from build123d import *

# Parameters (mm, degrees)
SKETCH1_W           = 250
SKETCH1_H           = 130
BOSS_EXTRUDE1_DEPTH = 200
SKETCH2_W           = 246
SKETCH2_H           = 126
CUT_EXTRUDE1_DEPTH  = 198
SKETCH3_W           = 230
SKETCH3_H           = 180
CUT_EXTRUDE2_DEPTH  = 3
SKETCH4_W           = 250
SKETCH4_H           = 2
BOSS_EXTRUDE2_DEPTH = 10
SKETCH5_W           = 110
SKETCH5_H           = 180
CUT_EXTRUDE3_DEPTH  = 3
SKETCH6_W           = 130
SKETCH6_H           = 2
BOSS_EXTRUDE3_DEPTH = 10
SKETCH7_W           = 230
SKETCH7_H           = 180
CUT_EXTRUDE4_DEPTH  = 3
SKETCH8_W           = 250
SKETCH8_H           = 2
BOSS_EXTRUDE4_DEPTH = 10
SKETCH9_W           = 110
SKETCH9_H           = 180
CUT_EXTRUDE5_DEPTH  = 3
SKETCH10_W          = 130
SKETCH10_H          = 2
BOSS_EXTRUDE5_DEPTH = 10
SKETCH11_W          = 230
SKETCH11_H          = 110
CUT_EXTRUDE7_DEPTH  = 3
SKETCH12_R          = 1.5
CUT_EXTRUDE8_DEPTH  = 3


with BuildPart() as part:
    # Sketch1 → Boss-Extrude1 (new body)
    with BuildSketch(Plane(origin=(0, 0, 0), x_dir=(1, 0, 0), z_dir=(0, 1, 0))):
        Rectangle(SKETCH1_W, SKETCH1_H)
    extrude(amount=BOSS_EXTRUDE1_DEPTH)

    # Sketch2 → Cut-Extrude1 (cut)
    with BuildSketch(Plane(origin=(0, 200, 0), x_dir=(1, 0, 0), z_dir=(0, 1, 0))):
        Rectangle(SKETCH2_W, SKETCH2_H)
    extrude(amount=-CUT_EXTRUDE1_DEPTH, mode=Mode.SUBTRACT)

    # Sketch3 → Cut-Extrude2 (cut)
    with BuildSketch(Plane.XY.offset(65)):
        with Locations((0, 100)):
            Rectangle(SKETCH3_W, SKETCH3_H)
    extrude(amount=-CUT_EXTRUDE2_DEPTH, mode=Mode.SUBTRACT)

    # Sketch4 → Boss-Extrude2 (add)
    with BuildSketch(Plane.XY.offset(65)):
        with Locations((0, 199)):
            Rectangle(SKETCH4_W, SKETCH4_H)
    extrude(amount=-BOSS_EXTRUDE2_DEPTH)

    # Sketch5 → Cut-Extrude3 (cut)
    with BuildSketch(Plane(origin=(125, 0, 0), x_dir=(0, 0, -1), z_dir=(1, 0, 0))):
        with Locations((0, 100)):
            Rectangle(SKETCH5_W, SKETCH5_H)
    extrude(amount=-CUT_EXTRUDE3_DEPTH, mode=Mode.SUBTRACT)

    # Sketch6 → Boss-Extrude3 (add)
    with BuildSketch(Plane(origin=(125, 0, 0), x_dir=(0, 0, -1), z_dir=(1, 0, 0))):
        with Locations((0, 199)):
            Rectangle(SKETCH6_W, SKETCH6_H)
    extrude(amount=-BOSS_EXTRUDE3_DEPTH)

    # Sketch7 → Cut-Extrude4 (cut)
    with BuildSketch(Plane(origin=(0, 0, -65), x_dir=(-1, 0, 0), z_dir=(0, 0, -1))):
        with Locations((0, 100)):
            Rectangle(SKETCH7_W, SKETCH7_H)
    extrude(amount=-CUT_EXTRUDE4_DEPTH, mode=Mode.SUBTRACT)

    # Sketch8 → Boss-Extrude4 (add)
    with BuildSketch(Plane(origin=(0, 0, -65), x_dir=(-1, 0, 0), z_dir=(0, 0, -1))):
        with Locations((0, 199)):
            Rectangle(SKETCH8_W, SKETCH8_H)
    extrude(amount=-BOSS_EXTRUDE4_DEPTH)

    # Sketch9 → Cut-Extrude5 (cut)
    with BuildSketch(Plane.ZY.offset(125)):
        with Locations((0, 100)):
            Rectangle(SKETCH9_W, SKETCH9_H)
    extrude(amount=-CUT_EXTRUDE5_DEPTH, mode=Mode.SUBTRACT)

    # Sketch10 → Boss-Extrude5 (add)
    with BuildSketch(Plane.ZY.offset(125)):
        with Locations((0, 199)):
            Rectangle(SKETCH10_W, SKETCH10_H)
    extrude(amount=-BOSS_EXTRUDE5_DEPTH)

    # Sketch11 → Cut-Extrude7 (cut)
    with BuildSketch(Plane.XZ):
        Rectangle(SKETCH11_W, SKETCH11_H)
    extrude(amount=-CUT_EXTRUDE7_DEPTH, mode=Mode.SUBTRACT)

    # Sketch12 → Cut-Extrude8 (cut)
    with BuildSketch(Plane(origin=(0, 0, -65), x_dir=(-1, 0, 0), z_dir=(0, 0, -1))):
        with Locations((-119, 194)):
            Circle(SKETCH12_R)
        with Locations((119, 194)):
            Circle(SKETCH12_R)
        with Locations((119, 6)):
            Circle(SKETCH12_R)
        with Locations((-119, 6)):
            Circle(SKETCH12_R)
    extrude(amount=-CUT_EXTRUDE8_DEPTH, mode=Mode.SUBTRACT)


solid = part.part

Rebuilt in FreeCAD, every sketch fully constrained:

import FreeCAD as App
import Part
import Sketcher
from FreeCAD import Vector

doc = App.newDocument("Part")
body = doc.addObject("PartDesign::Body", "Body")

sketch1 = doc.addObject("Sketcher::SketchObject", "Sketch")
body.addObject(sketch1)
sketch1.AttachmentSupport = (doc.XZ_Plane, [""])
sketch1.MapMode = "FlatFace"
sketch1.addGeometry(Part.LineSegment(Vector(-125, -65, 0), Vector(-125, 65, 0)), False)
sketch1.addGeometry(Part.LineSegment(Vector(-125, 65, 0), Vector(125, 65, 0)), False)
sketch1.addGeometry(Part.LineSegment(Vector(125, 65, 0), Vector(125, -65, 0)), False)
sketch1.addGeometry(Part.LineSegment(Vector(125, -65, 0), Vector(-125, -65, 0)), False)
sketch1.addConstraint(Sketcher.Constraint("Coincident", 0, 2, 1, 1))
sketch1.addConstraint(Sketcher.Constraint("Coincident", 1, 2, 2, 1))
sketch1.addConstraint(Sketcher.Constraint("Coincident", 2, 2, 3, 1))
sketch1.addConstraint(Sketcher.Constraint("Coincident", 3, 2, 0, 1))
sketch1.addConstraint(Sketcher.Constraint("Vertical", 0))
sketch1.addConstraint(Sketcher.Constraint("Horizontal", 1))
sketch1.addConstraint(Sketcher.Constraint("Vertical", 2))
sketch1.addConstraint(Sketcher.Constraint("Horizontal", 3))
sketch1.addConstraint(Sketcher.Constraint("Symmetric", 0, 2, 2, 2, -1, 1))
sketch1.addConstraint(Sketcher.Constraint("DistanceX", 1, 1, 1, 2, 250.0))
sketch1.addConstraint(Sketcher.Constraint("DistanceY", 0, 1, 0, 2, 130.0))
pad1 = doc.addObject("PartDesign::Pad", "Pad")
body.addObject(pad1)
pad1.Profile = sketch1
pad1.Length = 200
pad1.Reversed = True

sketch2 = doc.addObject("Sketcher::SketchObject", "Sketch001")
body.addObject(sketch2)
sketch2.AttachmentSupport = (doc.XZ_Plane, [""])
sketch2.MapMode = "FlatFace"
sketch2.AttachmentOffset = App.Placement(Vector(0, 0, -200), App.Rotation())
sketch2.addGeometry(Part.LineSegment(Vector(-123, -63, 0), Vector(-123, 63, 0)), False)
sketch2.addGeometry(Part.LineSegment(Vector(-123, 63, 0), Vector(123, 63, 0)), False)
sketch2.addGeometry(Part.LineSegment(Vector(123, 63, 0), Vector(123, -63, 0)), False)
sketch2.addGeometry(Part.LineSegment(Vector(123, -63, 0), Vector(-123, -63, 0)), False)
sketch2.addConstraint(Sketcher.Constraint("Coincident", 0, 2, 1, 1))
sketch2.addConstraint(Sketcher.Constraint("Coincident", 1, 2, 2, 1))
sketch2.addConstraint(Sketcher.Constraint("Coincident", 2, 2, 3, 1))
sketch2.addConstraint(Sketcher.Constraint("Coincident", 3, 2, 0, 1))
sketch2.addConstraint(Sketcher.Constraint("Vertical", 0))
sketch2.addConstraint(Sketcher.Constraint("Horizontal", 1))
sketch2.addConstraint(Sketcher.Constraint("Vertical", 2))
sketch2.addConstraint(Sketcher.Constraint("Horizontal", 3))
sketch2.addConstraint(Sketcher.Constraint("Symmetric", 0, 2, 2, 2, -1, 1))
sketch2.addConstraint(Sketcher.Constraint("DistanceX", 1, 1, 1, 2, 246.0))
sketch2.addConstraint(Sketcher.Constraint("DistanceY", 0, 1, 0, 2, 126.0))
pocket1 = doc.addObject("PartDesign::Pocket", "Pocket")
body.addObject(pocket1)
pocket1.Profile = sketch2
pocket1.Length = 198
pocket1.Reversed = True

sketch3 = doc.addObject("Sketcher::SketchObject", "Sketch002")
body.addObject(sketch3)
sketch3.AttachmentSupport = (doc.XY_Plane, [""])
sketch3.MapMode = "FlatFace"
sketch3.AttachmentOffset = App.Placement(Vector(0, 0, 65), App.Rotation())
sketch3.addGeometry(Part.LineSegment(Vector(-115, 190, 0), Vector(-115, 10, 0)), False)
sketch3.addGeometry(Part.LineSegment(Vector(-115, 10, 0), Vector(115, 10, 0)), False)
sketch3.addGeometry(Part.LineSegment(Vector(115, 10, 0), Vector(115, 190, 0)), False)
sketch3.addGeometry(Part.LineSegment(Vector(115, 190, 0), Vector(-115, 190, 0)), False)
sketch3.addConstraint(Sketcher.Constraint("Coincident", 0, 2, 1, 1))
sketch3.addConstraint(Sketcher.Constraint("Coincident", 1, 2, 2, 1))
sketch3.addConstraint(Sketcher.Constraint("Coincident", 2, 2, 3, 1))
sketch3.addConstraint(Sketcher.Constraint("Coincident", 3, 2, 0, 1))
sketch3.addConstraint(Sketcher.Constraint("Vertical", 0))
sketch3.addConstraint(Sketcher.Constraint("Horizontal", 1))
sketch3.addConstraint(Sketcher.Constraint("Vertical", 2))
sketch3.addConstraint(Sketcher.Constraint("Horizontal", 3))
sketch3.addConstraint(Sketcher.Constraint("DistanceX", 1, 1, 1, 2, 230.0))
sketch3.addConstraint(Sketcher.Constraint("DistanceY", 0, 2, 0, 1, 180.0))
sketch3.addConstraint(Sketcher.Constraint("DistanceX", 0, 2, -1, 1, 115.0))
sketch3.addConstraint(Sketcher.Constraint("DistanceY", -1, 1, 0, 2, 10.0))
pocket2 = doc.addObject("PartDesign::Pocket", "Pocket001")
body.addObject(pocket2)
pocket2.Profile = sketch3
pocket2.Length = 3

sketch4 = doc.addObject("Sketcher::SketchObject", "Sketch003")
body.addObject(sketch4)
sketch4.AttachmentSupport = (doc.XY_Plane, [""])
sketch4.MapMode = "FlatFace"
sketch4.AttachmentOffset = App.Placement(Vector(0, 0, 65), App.Rotation())
sketch4.addGeometry(Part.LineSegment(Vector(-125, 200, 0), Vector(-125, 198, 0)), False)
sketch4.addGeometry(Part.LineSegment(Vector(-125, 198, 0), Vector(125, 198, 0)), False)
sketch4.addGeometry(Part.LineSegment(Vector(125, 198, 0), Vector(125, 200, 0)), False)
sketch4.addGeometry(Part.LineSegment(Vector(125, 200, 0), Vector(-125, 200, 0)), False)
sketch4.addConstraint(Sketcher.Constraint("Coincident", 0, 2, 1, 1))
sketch4.addConstraint(Sketcher.Constraint("Coincident", 1, 2, 2, 1))
sketch4.addConstraint(Sketcher.Constraint("Coincident", 2, 2, 3, 1))
sketch4.addConstraint(Sketcher.Constraint("Coincident", 3, 2, 0, 1))
sketch4.addConstraint(Sketcher.Constraint("Vertical", 0))
sketch4.addConstraint(Sketcher.Constraint("Horizontal", 1))
sketch4.addConstraint(Sketcher.Constraint("Vertical", 2))
sketch4.addConstraint(Sketcher.Constraint("Horizontal", 3))
sketch4.addConstraint(Sketcher.Constraint("DistanceX", 1, 1, 1, 2, 250.0))
sketch4.addConstraint(Sketcher.Constraint("DistanceY", 0, 2, 0, 1, 2.0))
sketch4.addConstraint(Sketcher.Constraint("DistanceX", 0, 2, -1, 1, 125.0))
sketch4.addConstraint(Sketcher.Constraint("DistanceY", -1, 1, 0, 2, 198.0))
pad2 = doc.addObject("PartDesign::Pad", "Pad001")
body.addObject(pad2)
pad2.Profile = sketch4
pad2.Length = 10
pad2.Reversed = True

sketch5 = doc.addObject("Sketcher::SketchObject", "Sketch004")
body.addObject(sketch5)
sketch5.AttachmentSupport = (doc.YZ_Plane, [""])
sketch5.MapMode = "FlatFace"
sketch5.AttachmentOffset = App.Placement(Vector(0, 0, 125), App.Rotation())
sketch5.addGeometry(Part.LineSegment(Vector(190, 55, 0), Vector(10, 55, 0)), False)
sketch5.addGeometry(Part.LineSegment(Vector(10, 55, 0), Vector(10, -55, 0)), False)
sketch5.addGeometry(Part.LineSegment(Vector(10, -55, 0), Vector(190, -55, 0)), False)
sketch5.addGeometry(Part.LineSegment(Vector(190, -55, 0), Vector(190, 55, 0)), False)
sketch5.addConstraint(Sketcher.Constraint("Coincident", 0, 2, 1, 1))
sketch5.addConstraint(Sketcher.Constraint("Coincident", 1, 2, 2, 1))
sketch5.addConstraint(Sketcher.Constraint("Coincident", 2, 2, 3, 1))
sketch5.addConstraint(Sketcher.Constraint("Coincident", 3, 2, 0, 1))
sketch5.addConstraint(Sketcher.Constraint("Horizontal", 0))
sketch5.addConstraint(Sketcher.Constraint("Vertical", 1))
sketch5.addConstraint(Sketcher.Constraint("Horizontal", 2))
sketch5.addConstraint(Sketcher.Constraint("Vertical", 3))
sketch5.addConstraint(Sketcher.Constraint("DistanceX", 0, 2, 0, 1, 180.0))
sketch5.addConstraint(Sketcher.Constraint("DistanceY", 1, 2, 1, 1, 110.0))
sketch5.addConstraint(Sketcher.Constraint("DistanceX", -1, 1, 0, 2, 10.0))
sketch5.addConstraint(Sketcher.Constraint("DistanceY", -1, 1, 0, 2, 55.0))
pocket3 = doc.addObject("PartDesign::Pocket", "Pocket002")
body.addObject(pocket3)
pocket3.Profile = sketch5
pocket3.Length = 3

sketch6 = doc.addObject("Sketcher::SketchObject", "Sketch005")
body.addObject(sketch6)
sketch6.AttachmentSupport = (doc.YZ_Plane, [""])
sketch6.MapMode = "FlatFace"
sketch6.AttachmentOffset = App.Placement(Vector(0, 0, 125), App.Rotation())
sketch6.addGeometry(Part.LineSegment(Vector(200, 65, 0), Vector(198, 65, 0)), False)
sketch6.addGeometry(Part.LineSegment(Vector(198, 65, 0), Vector(198, -65, 0)), False)
sketch6.addGeometry(Part.LineSegment(Vector(198, -65, 0), Vector(200, -65, 0)), False)
sketch6.addGeometry(Part.LineSegment(Vector(200, -65, 0), Vector(200, 65, 0)), False)
sketch6.addConstraint(Sketcher.Constraint("Coincident", 0, 2, 1, 1))
sketch6.addConstraint(Sketcher.Constraint("Coincident", 1, 2, 2, 1))
sketch6.addConstraint(Sketcher.Constraint("Coincident", 2, 2, 3, 1))
sketch6.addConstraint(Sketcher.Constraint("Coincident", 3, 2, 0, 1))
sketch6.addConstraint(Sketcher.Constraint("Horizontal", 0))
sketch6.addConstraint(Sketcher.Constraint("Vertical", 1))
sketch6.addConstraint(Sketcher.Constraint("Horizontal", 2))
sketch6.addConstraint(Sketcher.Constraint("Vertical", 3))
sketch6.addConstraint(Sketcher.Constraint("DistanceX", 0, 2, 0, 1, 2.0))
sketch6.addConstraint(Sketcher.Constraint("DistanceY", 1, 2, 1, 1, 130.0))
sketch6.addConstraint(Sketcher.Constraint("DistanceX", -1, 1, 0, 2, 198.0))
sketch6.addConstraint(Sketcher.Constraint("DistanceY", -1, 1, 0, 2, 65.0))
pad3 = doc.addObject("PartDesign::Pad", "Pad002")
body.addObject(pad3)
pad3.Profile = sketch6
pad3.Length = 10
pad3.Reversed = True

sketch7 = doc.addObject("Sketcher::SketchObject", "Sketch006")
body.addObject(sketch7)
sketch7.AttachmentSupport = (doc.XY_Plane, [""])
sketch7.MapMode = "FlatFace"
sketch7.AttachmentOffset = App.Placement(Vector(0, 0, -65), App.Rotation())
sketch7.addGeometry(Part.LineSegment(Vector(115, 190, 0), Vector(115, 10, 0)), False)
sketch7.addGeometry(Part.LineSegment(Vector(115, 10, 0), Vector(-115, 10, 0)), False)
sketch7.addGeometry(Part.LineSegment(Vector(-115, 10, 0), Vector(-115, 190, 0)), False)
sketch7.addGeometry(Part.LineSegment(Vector(-115, 190, 0), Vector(115, 190, 0)), False)
sketch7.addConstraint(Sketcher.Constraint("Coincident", 0, 2, 1, 1))
sketch7.addConstraint(Sketcher.Constraint("Coincident", 1, 2, 2, 1))
sketch7.addConstraint(Sketcher.Constraint("Coincident", 2, 2, 3, 1))
sketch7.addConstraint(Sketcher.Constraint("Coincident", 3, 2, 0, 1))
sketch7.addConstraint(Sketcher.Constraint("Vertical", 0))
sketch7.addConstraint(Sketcher.Constraint("Horizontal", 1))
sketch7.addConstraint(Sketcher.Constraint("Vertical", 2))
sketch7.addConstraint(Sketcher.Constraint("Horizontal", 3))
sketch7.addConstraint(Sketcher.Constraint("DistanceX", 1, 2, 1, 1, 230.0))
sketch7.addConstraint(Sketcher.Constraint("DistanceY", 0, 2, 0, 1, 180.0))
sketch7.addConstraint(Sketcher.Constraint("DistanceX", -1, 1, 0, 2, 115.0))
sketch7.addConstraint(Sketcher.Constraint("DistanceY", -1, 1, 0, 2, 10.0))
pocket4 = doc.addObject("PartDesign::Pocket", "Pocket003")
body.addObject(pocket4)
pocket4.Profile = sketch7
pocket4.Length = 3
pocket4.Reversed = True

sketch8 = doc.addObject("Sketcher::SketchObject", "Sketch007")
body.addObject(sketch8)
sketch8.AttachmentSupport = (doc.XY_Plane, [""])
sketch8.MapMode = "FlatFace"
sketch8.AttachmentOffset = App.Placement(Vector(0, 0, -65), App.Rotation())
sketch8.addGeometry(Part.LineSegment(Vector(125, 200, 0), Vector(125, 198, 0)), False)
sketch8.addGeometry(Part.LineSegment(Vector(125, 198, 0), Vector(-125, 198, 0)), False)
sketch8.addGeometry(Part.LineSegment(Vector(-125, 198, 0), Vector(-125, 200, 0)), False)
sketch8.addGeometry(Part.LineSegment(Vector(-125, 200, 0), Vector(125, 200, 0)), False)
sketch8.addConstraint(Sketcher.Constraint("Coincident", 0, 2, 1, 1))
sketch8.addConstraint(Sketcher.Constraint("Coincident", 1, 2, 2, 1))
sketch8.addConstraint(Sketcher.Constraint("Coincident", 2, 2, 3, 1))
sketch8.addConstraint(Sketcher.Constraint("Coincident", 3, 2, 0, 1))
sketch8.addConstraint(Sketcher.Constraint("Vertical", 0))
sketch8.addConstraint(Sketcher.Constraint("Horizontal", 1))
sketch8.addConstraint(Sketcher.Constraint("Vertical", 2))
sketch8.addConstraint(Sketcher.Constraint("Horizontal", 3))
sketch8.addConstraint(Sketcher.Constraint("DistanceX", 1, 2, 1, 1, 250.0))
sketch8.addConstraint(Sketcher.Constraint("DistanceY", 0, 2, 0, 1, 2.0))
sketch8.addConstraint(Sketcher.Constraint("DistanceX", -1, 1, 0, 2, 125.0))
sketch8.addConstraint(Sketcher.Constraint("DistanceY", -1, 1, 0, 2, 198.0))
pad4 = doc.addObject("PartDesign::Pad", "Pad003")
body.addObject(pad4)
pad4.Profile = sketch8
pad4.Length = 10

sketch9 = doc.addObject("Sketcher::SketchObject", "Sketch008")
body.addObject(sketch9)
sketch9.AttachmentSupport = (doc.YZ_Plane, [""])
sketch9.MapMode = "FlatFace"
sketch9.AttachmentOffset = App.Placement(Vector(0, 0, -125), App.Rotation())
sketch9.addGeometry(Part.LineSegment(Vector(190, -55, 0), Vector(10, -55, 0)), False)
sketch9.addGeometry(Part.LineSegment(Vector(10, -55, 0), Vector(10, 55, 0)), False)
sketch9.addGeometry(Part.LineSegment(Vector(10, 55, 0), Vector(190, 55, 0)), False)
sketch9.addGeometry(Part.LineSegment(Vector(190, 55, 0), Vector(190, -55, 0)), False)
sketch9.addConstraint(Sketcher.Constraint("Coincident", 0, 2, 1, 1))
sketch9.addConstraint(Sketcher.Constraint("Coincident", 1, 2, 2, 1))
sketch9.addConstraint(Sketcher.Constraint("Coincident", 2, 2, 3, 1))
sketch9.addConstraint(Sketcher.Constraint("Coincident", 3, 2, 0, 1))
sketch9.addConstraint(Sketcher.Constraint("Horizontal", 0))
sketch9.addConstraint(Sketcher.Constraint("Vertical", 1))
sketch9.addConstraint(Sketcher.Constraint("Horizontal", 2))
sketch9.addConstraint(Sketcher.Constraint("Vertical", 3))
sketch9.addConstraint(Sketcher.Constraint("DistanceX", 0, 2, 0, 1, 180.0))
sketch9.addConstraint(Sketcher.Constraint("DistanceY", 1, 1, 1, 2, 110.0))
sketch9.addConstraint(Sketcher.Constraint("DistanceX", -1, 1, 0, 2, 10.0))
sketch9.addConstraint(Sketcher.Constraint("DistanceY", 0, 2, -1, 1, 55.0))
pocket5 = doc.addObject("PartDesign::Pocket", "Pocket004")
body.addObject(pocket5)
pocket5.Profile = sketch9
pocket5.Length = 3
pocket5.Reversed = True

sketch10 = doc.addObject("Sketcher::SketchObject", "Sketch009")
body.addObject(sketch10)
sketch10.AttachmentSupport = (doc.YZ_Plane, [""])
sketch10.MapMode = "FlatFace"
sketch10.AttachmentOffset = App.Placement(Vector(0, 0, -125), App.Rotation())
sketch10.addGeometry(Part.LineSegment(Vector(200, -65, 0), Vector(198, -65, 0)), False)
sketch10.addGeometry(Part.LineSegment(Vector(198, -65, 0), Vector(198, 65, 0)), False)
sketch10.addGeometry(Part.LineSegment(Vector(198, 65, 0), Vector(200, 65, 0)), False)
sketch10.addGeometry(Part.LineSegment(Vector(200, 65, 0), Vector(200, -65, 0)), False)
sketch10.addConstraint(Sketcher.Constraint("Coincident", 0, 2, 1, 1))
sketch10.addConstraint(Sketcher.Constraint("Coincident", 1, 2, 2, 1))
sketch10.addConstraint(Sketcher.Constraint("Coincident", 2, 2, 3, 1))
sketch10.addConstraint(Sketcher.Constraint("Coincident", 3, 2, 0, 1))
sketch10.addConstraint(Sketcher.Constraint("Horizontal", 0))
sketch10.addConstraint(Sketcher.Constraint("Vertical", 1))
sketch10.addConstraint(Sketcher.Constraint("Horizontal", 2))
sketch10.addConstraint(Sketcher.Constraint("Vertical", 3))
sketch10.addConstraint(Sketcher.Constraint("DistanceX", 0, 2, 0, 1, 2.0))
sketch10.addConstraint(Sketcher.Constraint("DistanceY", 1, 1, 1, 2, 130.0))
sketch10.addConstraint(Sketcher.Constraint("DistanceX", -1, 1, 0, 2, 198.0))
sketch10.addConstraint(Sketcher.Constraint("DistanceY", 0, 2, -1, 1, 65.0))
pad5 = doc.addObject("PartDesign::Pad", "Pad004")
body.addObject(pad5)
pad5.Profile = sketch10
pad5.Length = 10

sketch11 = doc.addObject("Sketcher::SketchObject", "Sketch010")
body.addObject(sketch11)
sketch11.AttachmentSupport = (doc.XZ_Plane, [""])
sketch11.MapMode = "FlatFace"
sketch11.addGeometry(Part.LineSegment(Vector(-115, 55, 0), Vector(-115, -55, 0)), False)
sketch11.addGeometry(Part.LineSegment(Vector(-115, -55, 0), Vector(115, -55, 0)), False)
sketch11.addGeometry(Part.LineSegment(Vector(115, -55, 0), Vector(115, 55, 0)), False)
sketch11.addGeometry(Part.LineSegment(Vector(115, 55, 0), Vector(-115, 55, 0)), False)
sketch11.addConstraint(Sketcher.Constraint("Coincident", 0, 2, 1, 1))
sketch11.addConstraint(Sketcher.Constraint("Coincident", 1, 2, 2, 1))
sketch11.addConstraint(Sketcher.Constraint("Coincident", 2, 2, 3, 1))
sketch11.addConstraint(Sketcher.Constraint("Coincident", 3, 2, 0, 1))
sketch11.addConstraint(Sketcher.Constraint("Vertical", 0))
sketch11.addConstraint(Sketcher.Constraint("Horizontal", 1))
sketch11.addConstraint(Sketcher.Constraint("Vertical", 2))
sketch11.addConstraint(Sketcher.Constraint("Horizontal", 3))
sketch11.addConstraint(Sketcher.Constraint("Symmetric", 0, 2, 2, 2, -1, 1))
sketch11.addConstraint(Sketcher.Constraint("DistanceX", 1, 1, 1, 2, 230.0))
sketch11.addConstraint(Sketcher.Constraint("DistanceY", 0, 2, 0, 1, 110.0))
pocket6 = doc.addObject("PartDesign::Pocket", "Pocket005")
body.addObject(pocket6)
pocket6.Profile = sketch11
pocket6.Length = 3

sketch12 = doc.addObject("Sketcher::SketchObject", "Sketch011")
body.addObject(sketch12)
sketch12.AttachmentSupport = (doc.XY_Plane, [""])
sketch12.MapMode = "FlatFace"
sketch12.AttachmentOffset = App.Placement(Vector(0, 0, -65), App.Rotation())
sketch12.addGeometry(Part.Circle(Vector(119, 194, 0), Vector(0, 0, 1), 1.5), False)
sketch12.addGeometry(Part.Circle(Vector(-119, 194, 0), Vector(0, 0, 1), 1.5), False)
sketch12.addGeometry(Part.Circle(Vector(-119, 6, 0), Vector(0, 0, 1), 1.5), False)
sketch12.addGeometry(Part.Circle(Vector(119, 6, 0), Vector(0, 0, 1), 1.5), False)
sketch12.addConstraint(Sketcher.Constraint("Equal", 0, 1))
sketch12.addConstraint(Sketcher.Constraint("Equal", 1, 2))
sketch12.addConstraint(Sketcher.Constraint("Equal", 2, 3))
sketch12.addConstraint(Sketcher.Constraint("Symmetric", 0, 3, 1, 3, -2))
sketch12.addConstraint(Sketcher.Constraint("Symmetric", 2, 3, 3, 3, -2))
sketch12.addConstraint(Sketcher.Constraint("Vertical", 1, 3, 2, 3))
sketch12.addConstraint(Sketcher.Constraint("Diameter", 0, 3.0))
sketch12.addConstraint(Sketcher.Constraint("DistanceX", -1, 1, 0, 3, 119.0))
sketch12.addConstraint(Sketcher.Constraint("DistanceY", -1, 1, 0, 3, 194.0))
sketch12.addConstraint(Sketcher.Constraint("DistanceY", -1, 1, 2, 3, 6.0))
pocket7 = doc.addObject("PartDesign::Pocket", "Pocket006")
body.addObject(pocket7)
pocket7.Profile = sketch12
pocket7.Length = 3
pocket7.Reversed = True

doc.recompute()
